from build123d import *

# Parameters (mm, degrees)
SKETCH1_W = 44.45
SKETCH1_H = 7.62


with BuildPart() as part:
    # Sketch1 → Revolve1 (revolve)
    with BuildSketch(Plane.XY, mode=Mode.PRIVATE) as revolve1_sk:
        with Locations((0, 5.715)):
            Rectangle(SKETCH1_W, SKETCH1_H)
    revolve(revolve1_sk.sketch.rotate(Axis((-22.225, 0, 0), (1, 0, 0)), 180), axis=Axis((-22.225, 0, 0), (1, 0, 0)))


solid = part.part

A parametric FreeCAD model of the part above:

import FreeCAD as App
import Part
import Sketcher
from FreeCAD import Vector
Q = App.Units.Quantity

doc = App.newDocument("Part")
body = doc.addObject("PartDesign::Body", "Body")

# Sketch on XY plane
sketch1 = body.newObject("Sketcher::SketchObject", "Sketch")
sketch1.AttachmentSupport = (doc.getObject("XY_Plane"), [""])
sketch1.MapMode = "FlatFace"
sketch1.addGeometry(Part.LineSegment(Vector(-22.225, 9.525, 0), Vector(-22.225, 1.905, 0)), False)
sketch1.addGeometry(Part.LineSegment(Vector(-22.225, 1.905, 0), Vector(22.225, 1.905, 0)), False)
sketch1.addGeometry(Part.LineSegment(Vector(22.225, 1.905, 0), Vector(22.225, 9.525, 0)), False)
sketch1.addGeometry(Part.LineSegment(Vector(22.225, 9.525, 0), Vector(-22.225, 9.525, 0)), False)
sketch1.addConstraint(Sketcher.Constraint("Coincident", 0, 2, 1, 1))
sketch1.addConstraint(Sketcher.Constraint("Coincident", 1, 2, 2, 1))
sketch1.addConstraint(Sketcher.Constraint("Coincident", 2, 2, 3, 1))
sketch1.addConstraint(Sketcher.Constraint("Coincident", 3, 2, 0, 1))
sketch1.addConstraint(Sketcher.Constraint("Vertical", 0))
sketch1.addConstraint(Sketcher.Constraint("Horizontal", 1))
sketch1.addConstraint(Sketcher.Constraint("Vertical", 2))
sketch1.addConstraint(Sketcher.Constraint("Horizontal", 3))
sketch1.addConstraint(Sketcher.Constraint("DistanceY", 0, 2, 0, 1, Q("0.3 in")))
sketch1.addConstraint(Sketcher.Constraint("DistanceX", 1, 1, 1, 2, Q("1.75 in")))
sketch1.addConstraint(Sketcher.Constraint("DistanceX", 0, 2, -1, 1, Q("0.875 in")))
sketch1.addConstraint(Sketcher.Constraint("DistanceY", -1, 1, 0, 2, Q("0.075 in")))
revolution = body.newObject("PartDesign::Revolution", "Revolution")
revolution.Profile = sketch1
revolution.ReferenceAxis = (sketch1, ["H_Axis"])
revolution.Angle = 360

doc.recompute()
